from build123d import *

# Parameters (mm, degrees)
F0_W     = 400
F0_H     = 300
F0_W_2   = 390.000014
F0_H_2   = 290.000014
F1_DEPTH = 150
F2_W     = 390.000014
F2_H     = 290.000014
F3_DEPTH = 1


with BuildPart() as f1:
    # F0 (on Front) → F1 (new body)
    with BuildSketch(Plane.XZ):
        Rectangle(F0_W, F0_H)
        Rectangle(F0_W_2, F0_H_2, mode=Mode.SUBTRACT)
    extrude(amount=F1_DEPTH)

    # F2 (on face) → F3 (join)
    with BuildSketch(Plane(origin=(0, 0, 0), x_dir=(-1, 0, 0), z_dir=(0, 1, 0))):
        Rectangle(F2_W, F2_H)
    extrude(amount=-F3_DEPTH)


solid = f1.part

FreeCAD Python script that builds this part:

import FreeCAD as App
import Part
import Sketcher
from FreeCAD import Vector


def add_polygon(sketch, points):
    """Adds a closed chain of lines whose ends are joined by coincident constraints."""
    first, n = sketch.GeometryCount, len(points)
    for a, b in zip(points, points[1:] + points[:1]):
        sketch.addGeometry(Part.LineSegment(App.Vector(*a, 0), App.Vector(*b, 0)), False)
    for i in range(n):
        sketch.addConstraint(Sketcher.Constraint("Coincident", first + i, 2, first + (i + 1) % n, 1))

doc = App.newDocument("Part")
params = doc.addObject("Spreadsheet::Sheet", "Params")
for row, (alias, value) in enumerate([
    ("sketch1_width", "400 mm"),
    ("sketch1_height", "300 mm"),
    ("pad1_length", "150 mm"),
    ("pad2_length", "1 mm"),
], start=1):
    params.set(f"A{row}", alias)
    params.set(f"B{row}", "=" + value)
    params.setAlias(f"B{row}", alias)

body = doc.addObject("PartDesign::Body", "Body")

# Sketch on XZ plane
sketch1 = doc.addObject("Sketcher::SketchObject", "Sketch")
body.addObject(sketch1)
sketch1.AttachmentSupport = (doc.XZ_Plane, [""])
sketch1.MapMode = "FlatFace"
add_polygon(sketch1, [(-200, 150), (-200, -150), (200, -150), (200, 150)])  # lines 0-3
add_polygon(sketch1, [(195, -145), (-195, -145), (-195, 145), (195, 145)])  # lines 4-7
sketch1.addConstraint([
    Sketcher.Constraint("Vertical", 0),
    Sketcher.Constraint("Horizontal", 1),
    Sketcher.Constraint("Vertical", 2),
    Sketcher.Constraint("Horizontal", 3),
    Sketcher.Constraint("Horizontal", 4),
    Sketcher.Constraint("Vertical", 5),
    Sketcher.Constraint("Horizontal", 6),
    Sketcher.Constraint("Vertical", 7),
    Sketcher.Constraint("Symmetric", 0, 2, 2, 2, -1, 1),
    Sketcher.Constraint("Symmetric", 4, 2, 6, 2, -1, 1),
    Sketcher.Constraint("DistanceX", 1, 1, 1, 2, 400.0),
    Sketcher.Constraint("DistanceY", 0, 2, 0, 1, 300.0),
    Sketcher.Constraint("DistanceX", 4, 2, 4, 1, 390.000014),
    Sketcher.Constraint("DistanceY", 5, 1, 5, 2, 290.000014),
])
sketch1.setExpression("Constraints[18]", "Params.sketch1_width")
sketch1.setExpression("Constraints[19]", "Params.sketch1_height")
pad1 = doc.addObject("PartDesign::Pad", "Pad")
body.addObject(pad1)
pad1.Profile = sketch1
pad1.setExpression("Length", "Params.pad1_length")

# Sketch on XZ plane
sketch2 = doc.addObject("Sketcher::SketchObject", "Sketch001")
body.addObject(sketch2)
sketch2.AttachmentSupport = (doc.XZ_Plane, [""])
sketch2.MapMode = "FlatFace"
add_polygon(sketch2, [(195, 145), (195, -145), (-195, -145), (-195, 145)])  # lines 0-3
sketch2.addConstraint([
    Sketcher.Constraint("Vertical", 0),
    Sketcher.Constraint("Horizontal", 1),
    Sketcher.Constraint("Vertical", 2),
    Sketcher.Constraint("Horizontal", 3),
    Sketcher.Constraint("Symmetric", 0, 2, 2, 2, -1, 1),
    Sketcher.Constraint("DistanceX", 1, 2, 1, 1, 390.000014),
    Sketcher.Constraint("DistanceY", 0, 2, 0, 1, 290.000014),
])
pad2 = doc.addObject("PartDesign::Pad", "Pad001")
body.addObject(pad2)
pad2.Profile = sketch2
pad2.setExpression("Length", "Params.pad2_length")

doc.recompute()
